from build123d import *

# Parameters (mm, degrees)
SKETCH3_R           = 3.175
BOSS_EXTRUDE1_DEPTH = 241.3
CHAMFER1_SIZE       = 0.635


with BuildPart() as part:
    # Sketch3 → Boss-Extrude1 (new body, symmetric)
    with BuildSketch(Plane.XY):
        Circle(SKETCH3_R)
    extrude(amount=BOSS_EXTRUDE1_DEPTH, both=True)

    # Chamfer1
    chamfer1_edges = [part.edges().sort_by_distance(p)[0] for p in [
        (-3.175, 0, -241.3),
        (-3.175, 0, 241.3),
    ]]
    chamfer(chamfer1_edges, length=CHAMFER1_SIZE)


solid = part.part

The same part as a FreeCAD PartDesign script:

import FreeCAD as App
import Part
import Sketcher

V = App.Vector
Q = App.Units.Quantity


def edges_at(feature, points):
    """Names of the edges that pass closest to the given points."""
    edges = feature.Shape.Edges
    near = lambda p: min(range(len(edges)), key=lambda i: edges[i].distToShape(Part.Vertex(*p))[0])
    return sorted({f"Edge{near(p) + 1}" for p in points})

doc = App.newDocument("Part")
body = doc.addObject("PartDesign::Body", "Body")

sketch1 = body.newObject("Sketcher::SketchObject", "Sketch")
sketch1.AttachmentSupport = (doc.getObject("XY_Plane"), [""])
sketch1.MapMode = "FlatFace"
sketch1.addGeometry(Part.Circle(V(0, 0, 0), V(0, 0, 1), 3.175), False)
sketch1.addConstraint([
    Sketcher.Constraint("Coincident", 0, 3, -1, 1),
    Sketcher.Constraint("Diameter", 0, Q("0.25 in")),
])
pad1 = body.newObject("PartDesign::Pad", "Pad")
pad1.Profile = sketch1
pad1.Length = Q("19 in")
pad1.Midplane = True
doc.recompute()

chamfer = body.newObject("PartDesign::Chamfer", "Chamfer")
chamfer.Base = (pad1, edges_at(pad1, [(-3.175, 0, -241.3), (-3.175, 0, 241.3)]))
chamfer.Size = Q("0.025 in")

doc.recompute()
